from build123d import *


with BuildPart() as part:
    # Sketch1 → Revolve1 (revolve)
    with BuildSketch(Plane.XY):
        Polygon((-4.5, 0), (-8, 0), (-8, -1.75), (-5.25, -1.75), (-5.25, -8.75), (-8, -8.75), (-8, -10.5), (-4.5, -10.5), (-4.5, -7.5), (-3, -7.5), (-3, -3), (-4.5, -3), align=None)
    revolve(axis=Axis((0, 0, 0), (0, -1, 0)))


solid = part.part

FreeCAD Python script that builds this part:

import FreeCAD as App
import Part
import Sketcher
from FreeCAD import Vector
Q = App.Units.Quantity

doc = App.newDocument("Part")
body = doc.addObject("PartDesign::Body", "Body")

sketch1 = doc.addObject("Sketcher::SketchObject", "Sketch")
body.addObject(sketch1)
sketch1.AttachmentSupport = (doc.XY_Plane, [""])
sketch1.MapMode = "FlatFace"
sketch1.addGeometry(Part.LineSegment(Vector(-4.5, 0, 0), Vector(-8, 0, 0)), False)
sketch1.addGeometry(Part.LineSegment(Vector(-8, 0, 0), Vector(-8, -1.8, 0)), False)
sketch1.addGeometry(Part.LineSegment(Vector(-8, -1.8, 0), Vector(-5.2, -1.8, 0)), False)
sketch1.addGeometry(Part.LineSegment(Vector(-5.2, -1.8, 0), Vector(-5.2, -8.8, 0)), False)
sketch1.addGeometry(Part.LineSegment(Vector(-5.2, -8.8, 0), Vector(-8, -8.8, 0)), False)
sketch1.addGeometry(Part.LineSegment(Vector(-8, -8.8, 0), Vector(-8, -10.5, 0)), False)
sketch1.addGeometry(Part.LineSegment(Vector(-8, -10.5, 0), Vector(-4.5, -10.5, 0)), False)
sketch1.addGeometry(Part.LineSegment(Vector(-4.5, -10.5, 0), Vector(-4.5, -7.5, 0)), False)
sketch1.addGeometry(Part.LineSegment(Vector(-4.5, -7.5, 0), Vector(-3, -7.5, 0)), False)
sketch1.addGeometry(Part.LineSegment(Vector(-3, -7.5, 0), Vector(-3, -3, 0)), False)
sketch1.addGeometry(Part.LineSegment(Vector(-3, -3, 0), Vector(-4.5, -3, 0)), False)
sketch1.addGeometry(Part.LineSegment(Vector(-4.5, -3, 0), Vector(-4.5, 0, 0)), False)
sketch1.addConstraint(Sketcher.Constraint("Coincident", 0, 2, 1, 1))
sketch1.addConstraint(Sketcher.Constraint("Coincident", 1, 2, 2, 1))
sketch1.addConstraint(Sketcher.Constraint("Coincident", 2, 2, 3, 1))
sketch1.addConstraint(Sketcher.Constraint("Coincident", 3, 2, 4, 1))
sketch1.addConstraint(Sketcher.Constraint("Coincident", 4, 2, 5, 1))
sketch1.addConstraint(Sketcher.Constraint("Coincident", 5, 2, 6, 1))
sketch1.addConstraint(Sketcher.Constraint("Coincident", 6, 2, 7, 1))
sketch1.addConstraint(Sketcher.Constraint("Coincident", 7, 2, 8, 1))
sketch1.addConstraint(Sketcher.Constraint("Coincident", 8, 2, 9, 1))
sketch1.addConstraint(Sketcher.Constraint("Coincident", 9, 2, 10, 1))
sketch1.addConstraint(Sketcher.Constraint("Coincident", 10, 2, 11, 1))
sketch1.addConstraint(Sketcher.Constraint("Coincident", 11, 2, 0, 1))
sketch1.addConstraint(Sketcher.Constraint("Horizontal", 0))
sketch1.addConstraint(Sketcher.Constraint("Vertical", 1))
sketch1.addConstraint(Sketcher.Constraint("Horizontal", 2))
sketch1.addConstraint(Sketcher.Constraint("Vertical", 3))
sketch1.addConstraint(Sketcher.Constraint("Horizontal", 4))
sketch1.addConstraint(Sketcher.Constraint("Vertical", 5))
sketch1.addConstraint(Sketcher.Constraint("Horizontal", 6))
sketch1.addConstraint(Sketcher.Constraint("Vertical", 7))
sketch1.addConstraint(Sketcher.Constraint("Horizontal", 8))
sketch1.addConstraint(Sketcher.Constraint("Vertical", 9))
sketch1.addConstraint(Sketcher.Constraint("Horizontal", 10))
sketch1.addConstraint(Sketcher.Constraint("Vertical", 11))
sketch1.addConstraint(Sketcher.Constraint("PointOnObject", 0, 2, -1))
sketch1.addConstraint(Sketcher.Constraint("Vertical", 1, 2, 4, 2))
sketch1.addConstraint(Sketcher.Constraint("Vertical", 7, 2, 10, 2))
sketch1.addConstraint(Sketcher.Constraint("Equal", 1, 5))
sketch1.addConstraint(Sketcher.Constraint("Equal", 7, 11))
sketch1.addConstraint(Sketcher.Constraint("DistanceY", 3, 2, 3, 1, Q("7 mm")))
sketch1.addConstraint(Sketcher.Constraint("DistanceY", 7, 1, 7, 2, Q("3 mm")))
sketch1.addConstraint(Sketcher.Constraint("DistanceX", 0, 2, 0, 1, Q("3.5 mm")))
sketch1.addConstraint(Sketcher.Constraint("DistanceX", 8, 1, 8, 2, Q("1.5 mm")))
sketch1.addConstraint(Sketcher.Constraint("DistanceY", 9, 1, 9, 2, Q("4.5 mm")))
sketch1.addConstraint(Sketcher.Constraint("DistanceX", 0, 2, -1, 1, Q("8 mm")))
sketch1.addConstraint(Sketcher.Constraint("DistanceX", 2, 1, 2, 2, Q("2.75 mm")))
revolution = doc.addObject("PartDesign::Revolution", "Revolution")
body.addObject(revolution)
revolution.Profile = sketch1
revolution.ReferenceAxis = (sketch1, ["V_Axis"])
revolution.Angle = 360

doc.recompute()
